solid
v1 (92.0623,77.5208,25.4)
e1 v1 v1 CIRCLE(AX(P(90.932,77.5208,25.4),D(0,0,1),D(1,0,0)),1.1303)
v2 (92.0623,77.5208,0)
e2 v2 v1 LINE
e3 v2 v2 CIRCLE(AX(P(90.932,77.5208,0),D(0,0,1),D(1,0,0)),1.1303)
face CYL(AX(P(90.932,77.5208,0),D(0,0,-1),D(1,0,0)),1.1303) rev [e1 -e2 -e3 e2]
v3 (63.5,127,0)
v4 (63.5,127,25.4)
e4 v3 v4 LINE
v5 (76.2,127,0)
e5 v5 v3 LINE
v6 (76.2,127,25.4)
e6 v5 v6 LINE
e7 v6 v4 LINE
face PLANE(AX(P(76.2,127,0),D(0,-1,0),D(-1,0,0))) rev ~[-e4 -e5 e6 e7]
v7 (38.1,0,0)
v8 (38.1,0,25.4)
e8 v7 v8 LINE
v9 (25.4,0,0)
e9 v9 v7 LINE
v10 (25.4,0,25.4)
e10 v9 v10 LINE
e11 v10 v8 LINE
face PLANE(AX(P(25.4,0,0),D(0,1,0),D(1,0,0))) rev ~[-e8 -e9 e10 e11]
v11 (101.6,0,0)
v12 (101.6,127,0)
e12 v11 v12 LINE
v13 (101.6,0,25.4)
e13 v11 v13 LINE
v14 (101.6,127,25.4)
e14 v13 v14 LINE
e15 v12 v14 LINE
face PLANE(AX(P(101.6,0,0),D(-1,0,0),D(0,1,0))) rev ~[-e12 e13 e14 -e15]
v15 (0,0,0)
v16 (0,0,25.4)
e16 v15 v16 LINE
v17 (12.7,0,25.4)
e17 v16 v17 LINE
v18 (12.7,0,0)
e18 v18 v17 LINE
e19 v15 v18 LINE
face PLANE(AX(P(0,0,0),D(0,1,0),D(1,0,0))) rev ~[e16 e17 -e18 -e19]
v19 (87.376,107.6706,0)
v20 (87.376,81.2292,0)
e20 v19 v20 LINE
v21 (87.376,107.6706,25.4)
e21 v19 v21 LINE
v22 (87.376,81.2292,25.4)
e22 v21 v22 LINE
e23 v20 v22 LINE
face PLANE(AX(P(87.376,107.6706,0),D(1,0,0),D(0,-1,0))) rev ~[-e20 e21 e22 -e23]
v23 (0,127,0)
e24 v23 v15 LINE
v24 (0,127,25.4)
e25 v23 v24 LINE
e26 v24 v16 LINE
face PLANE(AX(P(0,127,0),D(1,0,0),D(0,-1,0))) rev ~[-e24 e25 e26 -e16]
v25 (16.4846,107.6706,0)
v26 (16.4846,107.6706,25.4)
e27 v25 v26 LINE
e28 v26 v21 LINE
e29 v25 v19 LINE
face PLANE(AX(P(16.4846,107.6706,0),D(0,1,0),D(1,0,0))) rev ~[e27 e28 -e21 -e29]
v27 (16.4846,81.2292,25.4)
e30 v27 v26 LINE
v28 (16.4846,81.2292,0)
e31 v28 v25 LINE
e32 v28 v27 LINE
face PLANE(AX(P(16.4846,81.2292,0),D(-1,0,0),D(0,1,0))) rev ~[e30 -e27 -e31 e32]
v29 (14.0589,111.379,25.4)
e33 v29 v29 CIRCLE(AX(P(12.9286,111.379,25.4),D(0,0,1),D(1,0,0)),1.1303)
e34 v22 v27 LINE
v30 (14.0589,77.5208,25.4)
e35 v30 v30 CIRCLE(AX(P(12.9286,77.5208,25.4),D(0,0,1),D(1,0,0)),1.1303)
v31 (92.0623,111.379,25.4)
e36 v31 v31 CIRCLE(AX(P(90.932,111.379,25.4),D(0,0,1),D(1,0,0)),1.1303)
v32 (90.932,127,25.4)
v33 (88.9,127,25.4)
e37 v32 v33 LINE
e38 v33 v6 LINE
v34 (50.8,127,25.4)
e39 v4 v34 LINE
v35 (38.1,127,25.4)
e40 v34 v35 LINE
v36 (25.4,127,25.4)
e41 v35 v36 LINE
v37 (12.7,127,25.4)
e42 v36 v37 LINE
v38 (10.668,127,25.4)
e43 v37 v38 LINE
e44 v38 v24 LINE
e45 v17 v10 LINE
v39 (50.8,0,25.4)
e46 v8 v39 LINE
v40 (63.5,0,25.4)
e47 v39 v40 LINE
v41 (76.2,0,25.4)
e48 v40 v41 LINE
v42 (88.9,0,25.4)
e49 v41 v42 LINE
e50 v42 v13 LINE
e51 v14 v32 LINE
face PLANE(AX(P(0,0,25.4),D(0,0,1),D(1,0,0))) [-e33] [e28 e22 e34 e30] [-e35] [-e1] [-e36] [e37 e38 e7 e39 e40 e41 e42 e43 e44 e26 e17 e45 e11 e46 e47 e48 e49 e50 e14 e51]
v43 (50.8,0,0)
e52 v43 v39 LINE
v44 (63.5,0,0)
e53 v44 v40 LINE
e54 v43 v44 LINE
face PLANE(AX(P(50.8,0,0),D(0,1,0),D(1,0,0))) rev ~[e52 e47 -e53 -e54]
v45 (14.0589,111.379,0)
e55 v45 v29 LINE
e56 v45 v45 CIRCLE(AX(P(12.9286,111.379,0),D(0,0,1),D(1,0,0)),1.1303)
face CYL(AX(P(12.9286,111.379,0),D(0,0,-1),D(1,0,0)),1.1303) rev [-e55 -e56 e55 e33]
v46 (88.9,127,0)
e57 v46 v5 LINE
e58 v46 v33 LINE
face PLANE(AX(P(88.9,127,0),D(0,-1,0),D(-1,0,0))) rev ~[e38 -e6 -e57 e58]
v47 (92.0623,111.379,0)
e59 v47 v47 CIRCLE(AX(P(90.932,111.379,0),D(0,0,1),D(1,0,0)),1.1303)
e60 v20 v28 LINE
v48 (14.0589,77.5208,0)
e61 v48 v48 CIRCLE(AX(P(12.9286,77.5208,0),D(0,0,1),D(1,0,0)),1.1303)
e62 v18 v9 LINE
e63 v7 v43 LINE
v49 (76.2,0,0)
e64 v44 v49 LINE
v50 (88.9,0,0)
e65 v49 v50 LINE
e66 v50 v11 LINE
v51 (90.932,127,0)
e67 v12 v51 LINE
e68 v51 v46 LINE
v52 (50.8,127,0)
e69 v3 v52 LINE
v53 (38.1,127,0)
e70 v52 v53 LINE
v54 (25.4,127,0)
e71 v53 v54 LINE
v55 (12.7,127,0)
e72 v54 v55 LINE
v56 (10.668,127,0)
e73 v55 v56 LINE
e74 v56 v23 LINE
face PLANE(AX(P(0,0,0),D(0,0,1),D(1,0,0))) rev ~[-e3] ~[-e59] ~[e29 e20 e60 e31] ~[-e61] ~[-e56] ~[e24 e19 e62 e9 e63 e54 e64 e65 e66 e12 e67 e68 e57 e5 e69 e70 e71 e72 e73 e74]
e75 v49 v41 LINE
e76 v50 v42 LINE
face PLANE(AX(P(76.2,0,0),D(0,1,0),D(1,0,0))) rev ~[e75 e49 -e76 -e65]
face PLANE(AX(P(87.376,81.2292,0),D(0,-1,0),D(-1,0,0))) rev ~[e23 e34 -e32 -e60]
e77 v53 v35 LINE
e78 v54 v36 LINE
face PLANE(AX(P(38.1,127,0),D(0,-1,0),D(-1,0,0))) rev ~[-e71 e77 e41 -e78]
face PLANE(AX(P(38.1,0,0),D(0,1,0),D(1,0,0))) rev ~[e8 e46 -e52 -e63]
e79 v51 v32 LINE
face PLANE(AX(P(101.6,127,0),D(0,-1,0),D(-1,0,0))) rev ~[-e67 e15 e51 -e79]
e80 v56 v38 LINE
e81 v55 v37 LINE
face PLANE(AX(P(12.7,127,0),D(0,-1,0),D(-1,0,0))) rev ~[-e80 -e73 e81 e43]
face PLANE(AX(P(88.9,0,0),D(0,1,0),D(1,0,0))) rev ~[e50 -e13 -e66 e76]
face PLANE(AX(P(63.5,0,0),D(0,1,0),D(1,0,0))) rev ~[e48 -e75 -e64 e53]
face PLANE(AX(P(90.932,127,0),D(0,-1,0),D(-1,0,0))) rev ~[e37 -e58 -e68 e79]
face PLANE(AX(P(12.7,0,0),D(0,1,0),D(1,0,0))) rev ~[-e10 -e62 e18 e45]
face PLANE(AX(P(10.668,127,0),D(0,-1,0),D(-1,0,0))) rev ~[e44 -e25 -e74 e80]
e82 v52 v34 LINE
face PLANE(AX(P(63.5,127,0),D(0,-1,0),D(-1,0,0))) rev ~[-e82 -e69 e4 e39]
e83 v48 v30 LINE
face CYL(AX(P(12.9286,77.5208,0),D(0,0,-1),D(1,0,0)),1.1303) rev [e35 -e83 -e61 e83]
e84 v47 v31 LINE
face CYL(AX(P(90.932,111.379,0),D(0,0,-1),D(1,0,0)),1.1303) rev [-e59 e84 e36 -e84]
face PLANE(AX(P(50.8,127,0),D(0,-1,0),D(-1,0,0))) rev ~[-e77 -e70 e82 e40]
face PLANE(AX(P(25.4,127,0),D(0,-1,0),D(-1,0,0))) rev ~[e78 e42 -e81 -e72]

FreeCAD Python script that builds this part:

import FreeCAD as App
import Part
import Sketcher

V = App.Vector
Q = App.Units.Quantity

doc = App.newDocument("Part")
params = doc.addObject("Spreadsheet::Sheet", "Params")
for row, (alias, value) in enumerate([
    ("sketch1_width", "4 in"),
    ("sketch1_height", "5 in"),
    ("sketch1_diameter", "0.089 in"),
    ("sketch1_width2", "2.791 in"),
    ("sketch1_height2", "1.041 in"),
    ("pad1_length", "1 in"),
], start=1):
    params.set(f"A{row}", alias)
    params.set(f"B{row}", "=" + value)
    params.setAlias(f"B{row}", alias)

body = doc.addObject("PartDesign::Body", "Body")

# Sketch on XY plane
sketch1 = body.newObject("Sketcher::SketchObject", "Sketch")
sketch1.AttachmentSupport = (doc.getObject("XY_Plane"), [""])
sketch1.MapMode = "FlatFace"
sketch1.addGeometry([
    Part.LineSegment(V(0, 127, 0), V(0, 0, 0)),  # 0
    Part.LineSegment(V(0, 0, 0), V(101.6, 0, 0)),  # 1
    Part.LineSegment(V(101.6, 0, 0), V(101.6, 127, 0)),  # 2
    Part.LineSegment(V(101.6, 127, 0), V(0, 127, 0)),  # 3
    Part.Circle(V(12.9, 77.5, 0), V(0, 0, 1), 1.1),  # 4
    Part.Circle(V(12.9, 111.4, 0), V(0, 0, 1), 1.1),  # 5
    Part.LineSegment(V(87.4, 107.7, 0), V(87.4, 81.2, 0)),  # 6
    Part.LineSegment(V(87.4, 81.2, 0), V(16.5, 81.2, 0)),  # 7
    Part.LineSegment(V(16.5, 81.2, 0), V(16.5, 107.7, 0)),  # 8
    Part.LineSegment(V(16.5, 107.7, 0), V(87.4, 107.7, 0)),  # 9
    Part.Circle(V(90.9, 77.5, 0), V(0, 0, 1), 1.1),  # 10
    Part.Circle(V(90.9, 111.4, 0), V(0, 0, 1), 1.1),  # 11
], False)
sketch1.addConstraint([
    Sketcher.Constraint("Coincident", 0, 2, 1, 1),
    Sketcher.Constraint("Coincident", 1, 2, 2, 1),
    Sketcher.Constraint("Coincident", 2, 2, 3, 1),
    Sketcher.Constraint("Coincident", 3, 2, 0, 1),
    Sketcher.Constraint("Coincident", 6, 2, 7, 1),
    Sketcher.Constraint("Coincident", 7, 2, 8, 1),
    Sketcher.Constraint("Coincident", 8, 2, 9, 1),
    Sketcher.Constraint("Coincident", 9, 2, 6, 1),
    Sketcher.Constraint("Vertical", 0),
    Sketcher.Constraint("Horizontal", 1),
    Sketcher.Constraint("Vertical", 2),
    Sketcher.Constraint("Horizontal", 3),
    Sketcher.Constraint("Vertical", 6),
    Sketcher.Constraint("Horizontal", 7),
    Sketcher.Constraint("Vertical", 8),
    Sketcher.Constraint("Horizontal", 9),
    Sketcher.Constraint("Coincident", 0, 2, -1, 1),
    Sketcher.Constraint("Equal", 4, 5),
    Sketcher.Constraint("Equal", 5, 10),
    Sketcher.Constraint("Equal", 10, 11),
    Sketcher.Constraint("Horizontal", 4, 3, 10, 3),
    Sketcher.Constraint("Horizontal", 5, 3, 11, 3),
    Sketcher.Constraint("Vertical", 4, 3, 5, 3),
    Sketcher.Constraint("Vertical", 10, 3, 11, 3),
    Sketcher.Constraint("DistanceX", 1, 1, 1, 2, Q("4 in")),
    Sketcher.Constraint("DistanceY", 0, 2, 0, 1, Q("5 in")),
    Sketcher.Constraint("Diameter", 4, Q("0.089 in")),
    Sketcher.Constraint("DistanceX", 10, 3, 1, 2, Q("0.42 in")),
    Sketcher.Constraint("DistanceX", 7, 2, 7, 1, Q("2.791 in")),
    Sketcher.Constraint("DistanceY", 6, 2, 6, 1, Q("1.041 in")),
    Sketcher.Constraint("DistanceX", -1, 1, 6, 2, Q("3.44 in")),
    Sketcher.Constraint("DistanceX", 4, 3, 7, 2, Q("0.14 in")),
    Sketcher.Constraint("DistanceY", -1, 1, 4, 3, Q("3.052 in")),
    Sketcher.Constraint("DistanceY", -1, 1, 5, 3, Q("4.385 in")),
    Sketcher.Constraint("DistanceY", -1, 1, 6, 2, Q("3.198 in")),
])
sketch1.setExpression("Constraints[24]", "Params.sketch1_width")
sketch1.setExpression("Constraints[25]", "Params.sketch1_height")
sketch1.setExpression("Constraints[26]", "Params.sketch1_diameter")
sketch1.setExpression("Constraints[28]", "Params.sketch1_width2")
sketch1.setExpression("Constraints[29]", "Params.sketch1_height2")
pad1 = body.newObject("PartDesign::Pad", "Pad")
pad1.Profile = sketch1
pad1.setExpression("Length", "Params.pad1_length")

doc.recompute()
